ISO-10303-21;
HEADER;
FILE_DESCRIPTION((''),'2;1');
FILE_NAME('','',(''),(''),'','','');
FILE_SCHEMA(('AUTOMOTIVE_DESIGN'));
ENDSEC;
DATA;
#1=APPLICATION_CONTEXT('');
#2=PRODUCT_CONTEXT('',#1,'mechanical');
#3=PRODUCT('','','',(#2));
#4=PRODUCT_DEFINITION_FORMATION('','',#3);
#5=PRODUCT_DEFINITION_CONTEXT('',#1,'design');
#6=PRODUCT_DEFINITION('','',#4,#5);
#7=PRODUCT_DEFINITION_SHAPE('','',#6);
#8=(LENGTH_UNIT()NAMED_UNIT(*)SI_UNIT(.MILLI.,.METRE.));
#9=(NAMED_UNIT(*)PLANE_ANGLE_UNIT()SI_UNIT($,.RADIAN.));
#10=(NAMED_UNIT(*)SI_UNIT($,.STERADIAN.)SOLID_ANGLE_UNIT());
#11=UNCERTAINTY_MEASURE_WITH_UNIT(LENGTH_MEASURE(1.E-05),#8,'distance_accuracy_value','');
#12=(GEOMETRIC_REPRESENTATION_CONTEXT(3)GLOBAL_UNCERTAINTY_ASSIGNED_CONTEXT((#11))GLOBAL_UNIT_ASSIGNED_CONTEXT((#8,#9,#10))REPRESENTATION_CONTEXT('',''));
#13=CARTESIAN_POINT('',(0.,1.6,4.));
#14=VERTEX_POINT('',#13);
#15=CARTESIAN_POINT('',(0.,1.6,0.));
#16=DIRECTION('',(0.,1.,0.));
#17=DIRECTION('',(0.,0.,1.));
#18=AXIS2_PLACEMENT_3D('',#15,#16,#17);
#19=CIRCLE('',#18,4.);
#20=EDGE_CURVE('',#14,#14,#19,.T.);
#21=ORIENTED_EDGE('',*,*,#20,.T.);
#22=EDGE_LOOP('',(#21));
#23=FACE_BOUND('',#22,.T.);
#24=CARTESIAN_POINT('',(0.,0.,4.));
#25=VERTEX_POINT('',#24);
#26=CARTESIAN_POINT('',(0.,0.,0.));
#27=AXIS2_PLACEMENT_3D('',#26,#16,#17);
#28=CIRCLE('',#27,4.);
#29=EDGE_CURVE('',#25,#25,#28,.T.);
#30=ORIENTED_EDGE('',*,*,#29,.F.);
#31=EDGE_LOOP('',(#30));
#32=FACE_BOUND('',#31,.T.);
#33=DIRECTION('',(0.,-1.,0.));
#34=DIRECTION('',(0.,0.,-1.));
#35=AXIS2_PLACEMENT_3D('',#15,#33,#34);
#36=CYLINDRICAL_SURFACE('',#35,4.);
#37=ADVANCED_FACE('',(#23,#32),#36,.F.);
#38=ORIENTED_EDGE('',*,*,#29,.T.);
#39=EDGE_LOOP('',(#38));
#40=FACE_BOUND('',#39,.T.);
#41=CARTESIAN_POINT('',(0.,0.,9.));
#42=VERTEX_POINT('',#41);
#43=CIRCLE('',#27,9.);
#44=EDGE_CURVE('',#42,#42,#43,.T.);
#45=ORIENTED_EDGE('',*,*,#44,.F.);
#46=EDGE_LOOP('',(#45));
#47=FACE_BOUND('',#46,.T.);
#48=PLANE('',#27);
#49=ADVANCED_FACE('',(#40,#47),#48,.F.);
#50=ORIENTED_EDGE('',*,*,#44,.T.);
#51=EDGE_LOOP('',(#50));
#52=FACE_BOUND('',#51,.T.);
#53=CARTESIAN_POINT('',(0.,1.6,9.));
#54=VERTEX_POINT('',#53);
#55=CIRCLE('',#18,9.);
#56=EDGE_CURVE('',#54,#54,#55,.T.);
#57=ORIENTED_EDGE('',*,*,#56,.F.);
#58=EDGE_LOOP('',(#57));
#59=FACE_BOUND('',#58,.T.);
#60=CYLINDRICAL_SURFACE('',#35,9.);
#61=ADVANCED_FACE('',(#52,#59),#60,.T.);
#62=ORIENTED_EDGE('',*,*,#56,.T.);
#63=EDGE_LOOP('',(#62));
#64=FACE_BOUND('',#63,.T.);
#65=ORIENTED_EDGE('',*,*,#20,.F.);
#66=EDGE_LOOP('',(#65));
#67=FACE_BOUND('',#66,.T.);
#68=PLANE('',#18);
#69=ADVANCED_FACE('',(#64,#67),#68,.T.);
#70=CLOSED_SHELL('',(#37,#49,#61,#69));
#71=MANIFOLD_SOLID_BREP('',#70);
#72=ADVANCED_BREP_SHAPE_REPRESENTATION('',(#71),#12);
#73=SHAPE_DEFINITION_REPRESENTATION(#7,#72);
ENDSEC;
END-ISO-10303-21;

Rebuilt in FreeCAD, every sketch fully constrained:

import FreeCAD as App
import Part
import Sketcher
from FreeCAD import Vector
Q = App.Units.Quantity

doc = App.newDocument("Part")
body = doc.addObject("PartDesign::Body", "Body")

# Sketch on XZ plane
sketch1 = body.newObject("Sketcher::SketchObject", "Sketch")
sketch1.AttachmentSupport = (doc.getObject("XZ_Plane"), [""])
sketch1.MapMode = "FlatFace"
sketch1.addGeometry([
    Part.Circle(Vector(0, 0, 0), Vector(0, 0, 1), 9),
    Part.Circle(Vector(0, 0, 0), Vector(0, 0, 1), 4),
], False)
sketch1.addConstraint([
    Sketcher.Constraint("Coincident", 0, 3, -1, 1),
    Sketcher.Constraint("Coincident", 1, 3, -1, 1),
    Sketcher.Constraint("Diameter", 0, Q("18 mm")),
    Sketcher.Constraint("Diameter", 1, Q("8 mm")),
])
pad1 = body.newObject("PartDesign::Pad", "Pad")
pad1.Profile = sketch1
pad1.Length = 1.6
pad1.Reversed = True

doc.recompute()
